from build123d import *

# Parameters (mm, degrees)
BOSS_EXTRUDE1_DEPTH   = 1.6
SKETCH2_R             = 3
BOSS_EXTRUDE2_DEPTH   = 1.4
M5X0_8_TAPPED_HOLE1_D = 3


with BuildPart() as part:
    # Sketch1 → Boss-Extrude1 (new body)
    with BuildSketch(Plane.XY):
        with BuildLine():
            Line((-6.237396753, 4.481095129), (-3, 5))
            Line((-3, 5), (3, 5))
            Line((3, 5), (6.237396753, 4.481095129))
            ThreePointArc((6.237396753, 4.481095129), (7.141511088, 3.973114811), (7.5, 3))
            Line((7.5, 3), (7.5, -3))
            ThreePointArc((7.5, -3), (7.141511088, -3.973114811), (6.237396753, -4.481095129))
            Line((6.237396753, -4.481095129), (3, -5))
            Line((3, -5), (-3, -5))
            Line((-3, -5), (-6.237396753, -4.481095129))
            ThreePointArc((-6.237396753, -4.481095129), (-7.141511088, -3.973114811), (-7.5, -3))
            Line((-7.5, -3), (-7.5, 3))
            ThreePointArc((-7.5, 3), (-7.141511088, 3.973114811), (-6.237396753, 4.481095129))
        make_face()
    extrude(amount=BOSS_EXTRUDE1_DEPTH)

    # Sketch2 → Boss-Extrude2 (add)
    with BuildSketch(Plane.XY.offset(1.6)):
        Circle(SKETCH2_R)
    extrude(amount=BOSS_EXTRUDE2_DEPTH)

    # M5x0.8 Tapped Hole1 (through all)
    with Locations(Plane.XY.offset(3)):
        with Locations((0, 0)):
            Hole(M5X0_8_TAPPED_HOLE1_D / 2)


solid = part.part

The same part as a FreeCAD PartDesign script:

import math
import FreeCAD as App
import Part
import Sketcher

V = App.Vector
Q = App.Units.Quantity

doc = App.newDocument("Part")
body = doc.addObject("PartDesign::Body", "Body")

# Sketch on XY plane
sketch1 = body.newObject("Sketcher::SketchObject", "Sketch")
sketch1.AttachmentSupport = (doc.getObject("XY_Plane"), [""])
sketch1.MapMode = "FlatFace"
sketch1.addGeometry([
    Part.LineSegment(V(-3, 5, 0), V(-6.2, 4.5, 0)),  # 0
    Part.ArcOfCircle(Part.Circle(V(-6, 3, 0), V(0, 0, 1), 1.5), math.radians(99), math.radians(180)),  # 1
    Part.LineSegment(V(-7.5, 3, 0), V(-7.5, -3, 0)),  # 2
    Part.ArcOfCircle(Part.Circle(V(-6, -3, 0), V(0, 0, 1), 1.5), math.radians(180), math.radians(261)),  # 3
    Part.LineSegment(V(-6.2, -4.5, 0), V(-3, -5, 0)),  # 4
    Part.LineSegment(V(-3, -5, 0), V(3, -5, 0)),  # 5
    Part.LineSegment(V(3, -5, 0), V(6.2, -4.5, 0)),  # 6
    Part.ArcOfCircle(Part.Circle(V(6, -3, 0), V(0, 0, 1), 1.5), math.radians(-81), math.radians(0)),  # 7
    Part.LineSegment(V(7.5, -3, 0), V(7.5, 3, 0)),  # 8
    Part.ArcOfCircle(Part.Circle(V(6, 3, 0), V(0, 0, 1), 1.5), math.radians(0), math.radians(81)),  # 9
    Part.LineSegment(V(6.2, 4.5, 0), V(3, 5, 0)),  # 10
    Part.LineSegment(V(3, 5, 0), V(-3, 5, 0)),  # 11
], False)
sketch1.addConstraint([
    Sketcher.Constraint("Tangent", 0, 2, 1, 1),
    Sketcher.Constraint("Tangent", 1, 2, 2, 1),
    Sketcher.Constraint("Tangent", 2, 2, 3, 1),
    Sketcher.Constraint("Tangent", 3, 2, 4, 1),
    Sketcher.Constraint("Coincident", 4, 2, 5, 1),
    Sketcher.Constraint("Coincident", 5, 2, 6, 1),
    Sketcher.Constraint("Tangent", 6, 2, 7, 1),
    Sketcher.Constraint("Tangent", 7, 2, 8, 1),
    Sketcher.Constraint("Tangent", 8, 2, 9, 1),
    Sketcher.Constraint("Tangent", 9, 2, 10, 1),
    Sketcher.Constraint("Coincident", 10, 2, 11, 1),
    Sketcher.Constraint("Coincident", 11, 2, 0, 1),
    Sketcher.Constraint("Vertical", 2),
    Sketcher.Constraint("Horizontal", 5),
    Sketcher.Constraint("Vertical", 8),
    Sketcher.Constraint("Horizontal", 11),
    Sketcher.Constraint("Equal", 1, 3),
    Sketcher.Constraint("Equal", 3, 7),
    Sketcher.Constraint("Equal", 7, 9),
    Sketcher.Constraint("Symmetric", 1, 3, 7, 3, -1, 1),
    Sketcher.Constraint("Symmetric", 3, 2, 9, 2, -1, 1),
    Sketcher.Constraint("Symmetric", 5, 2, 11, 2, -1, 1),
    Sketcher.Constraint("Symmetric", 3, 2, 6, 2, -2),
    Sketcher.Constraint("Equal", 11, 2),
    Sketcher.Constraint("Radius", 1, Q("1.5 mm")),
    Sketcher.Constraint("DistanceX", 5, 1, 5, 2, Q("6 mm")),
    Sketcher.Constraint("DistanceX", 1, 3, -1, 1, Q("6 mm")),
    Sketcher.Constraint("DistanceY", 4, 2, -1, 1, Q("5 mm")),
])
pad1 = body.newObject("PartDesign::Pad", "Pad")
pad1.Profile = sketch1
pad1.Length = 1.6

# Sketch on XY plane
sketch2 = body.newObject("Sketcher::SketchObject", "Sketch001")
sketch2.AttachmentSupport = (doc.getObject("XY_Plane"), [""])
sketch2.MapMode = "FlatFace"
sketch2.AttachmentOffset = App.Placement(V(0, 0, 1.6), App.Rotation())
sketch2.addGeometry(Part.Circle(V(0, 0, 0), V(0, 0, 1), 3), False)
sketch2.addConstraint([
    Sketcher.Constraint("Coincident", 0, 3, -1, 1),
    Sketcher.Constraint("Diameter", 0, Q("6 mm")),
])
pad2 = body.newObject("PartDesign::Pad", "Pad001")
pad2.Profile = sketch2
pad2.Length = 1.4

# Sketch on XY plane
sketch3 = body.newObject("Sketcher::SketchObject", "Sketch002")
sketch3.AttachmentSupport = (doc.getObject("XY_Plane"), [""])
sketch3.MapMode = "FlatFace"
sketch3.AttachmentOffset = App.Placement(V(0, 0, 3), App.Rotation())
sketch3.addGeometry(Part.Circle(V(0, 0, 0), V(0, 0, 1), 1.5), False)
sketch3.addConstraint([
    Sketcher.Constraint("Coincident", 0, 3, -1, 1),
    Sketcher.Constraint("Diameter", 0, Q("3 mm")),
])
doc.recompute()
hole = body.newObject("PartDesign::Hole", "Hole")
hole.Profile = sketch3
hole.ThreadType = "None"
hole.Diameter = 3
hole.DepthType = "ThroughAll"

doc.recompute()
